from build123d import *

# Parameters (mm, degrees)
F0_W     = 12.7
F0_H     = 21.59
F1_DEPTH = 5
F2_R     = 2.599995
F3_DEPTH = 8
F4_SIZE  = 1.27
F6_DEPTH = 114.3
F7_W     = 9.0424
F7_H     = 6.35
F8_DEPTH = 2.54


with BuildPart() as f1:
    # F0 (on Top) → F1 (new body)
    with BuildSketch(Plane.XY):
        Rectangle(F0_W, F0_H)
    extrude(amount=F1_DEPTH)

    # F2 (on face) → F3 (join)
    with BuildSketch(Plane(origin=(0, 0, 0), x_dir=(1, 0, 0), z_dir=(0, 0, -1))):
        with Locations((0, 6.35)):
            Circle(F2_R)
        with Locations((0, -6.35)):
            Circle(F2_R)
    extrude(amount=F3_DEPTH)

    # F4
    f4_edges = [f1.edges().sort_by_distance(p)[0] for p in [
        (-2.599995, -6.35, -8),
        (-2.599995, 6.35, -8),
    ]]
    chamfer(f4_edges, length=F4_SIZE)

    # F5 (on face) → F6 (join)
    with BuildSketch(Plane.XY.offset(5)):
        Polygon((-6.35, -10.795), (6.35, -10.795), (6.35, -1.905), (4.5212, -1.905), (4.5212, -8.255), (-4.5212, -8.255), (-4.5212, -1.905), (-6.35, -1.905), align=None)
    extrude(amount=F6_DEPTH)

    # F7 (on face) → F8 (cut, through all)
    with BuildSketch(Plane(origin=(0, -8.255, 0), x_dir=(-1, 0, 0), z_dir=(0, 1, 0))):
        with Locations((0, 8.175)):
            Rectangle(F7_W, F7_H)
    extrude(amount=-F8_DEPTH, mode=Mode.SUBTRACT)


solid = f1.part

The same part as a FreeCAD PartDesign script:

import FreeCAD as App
import Part
import Sketcher
from FreeCAD import Vector
Q = App.Units.Quantity


def edges_at(feature, points):
    """Names of the edges that pass closest to the given points."""
    edges = feature.Shape.Edges
    near = lambda p: min(range(len(edges)), key=lambda i: edges[i].distToShape(Part.Vertex(*p))[0])
    return sorted({f"Edge{near(p) + 1}" for p in points})

doc = App.newDocument("Part")
body = doc.addObject("PartDesign::Body", "Body")

# Sketch on XY plane
sketch1 = body.newObject("Sketcher::SketchObject", "Sketch")
sketch1.AttachmentSupport = (doc.getObject("XY_Plane"), [""])
sketch1.MapMode = "FlatFace"
sketch1.addGeometry([
    Part.LineSegment(Vector(-6, 11, 0), Vector(-6, -11, 0)),
    Part.LineSegment(Vector(-6, -11, 0), Vector(6, -11, 0)),
    Part.LineSegment(Vector(6, -11, 0), Vector(6, 11, 0)),
    Part.LineSegment(Vector(6, 11, 0), Vector(-6, 11, 0)),
], False)
sketch1.addConstraint([
    Sketcher.Constraint("Coincident", 0, 2, 1, 1),
    Sketcher.Constraint("Coincident", 1, 2, 2, 1),
    Sketcher.Constraint("Coincident", 2, 2, 3, 1),
    Sketcher.Constraint("Coincident", 3, 2, 0, 1),
    Sketcher.Constraint("Vertical", 0),
    Sketcher.Constraint("Horizontal", 1),
    Sketcher.Constraint("Vertical", 2),
    Sketcher.Constraint("Horizontal", 3),
    Sketcher.Constraint("Symmetric", 0, 2, 2, 2, -1, 1),
    Sketcher.Constraint("DistanceX", 1, 1, 1, 2, Q("0.5 in")),
    Sketcher.Constraint("DistanceY", 0, 2, 0, 1, Q("0.85 in")),
])
pad1 = body.newObject("PartDesign::Pad", "Pad")
pad1.Profile = sketch1
pad1.Length = 5

# Sketch on XY plane
sketch2 = body.newObject("Sketcher::SketchObject", "Sketch001")
sketch2.AttachmentSupport = (doc.getObject("XY_Plane"), [""])
sketch2.MapMode = "FlatFace"
sketch2.addGeometry([
    Part.Circle(Vector(0, -6.3, 0), Vector(0, 0, 1), 2.6),
    Part.Circle(Vector(0, 6.3, 0), Vector(0, 0, 1), 2.6),
], False)
sketch2.addConstraint([
    Sketcher.Constraint("Equal", 0, 1),
    Sketcher.Constraint("Symmetric", 0, 3, 1, 3, -1, 1),
    Sketcher.Constraint("PointOnObject", 0, 3, -2),
    Sketcher.Constraint("DistanceY", 0, 3, 1, 3, Q("0.5 in")),
    Sketcher.Constraint("Diameter", 0, 5.19999),
])
pad2 = body.newObject("PartDesign::Pad", "Pad001")
pad2.Profile = sketch2
pad2.Length = 8
pad2.Reversed = True
doc.recompute()

chamfer = body.newObject("PartDesign::Chamfer", "Chamfer")
chamfer.Base = (pad2, edges_at(pad2, [(-2.6, -6.35, -8), (-2.6, 6.35, -8)]))
chamfer.Size = Q("0.05 in")

# Sketch on XY plane
sketch3 = body.newObject("Sketcher::SketchObject", "Sketch002")
sketch3.AttachmentSupport = (doc.getObject("XY_Plane"), [""])
sketch3.MapMode = "FlatFace"
sketch3.AttachmentOffset = App.Placement(Vector(0, 0, 5), App.Rotation())
sketch3.addGeometry([
    Part.LineSegment(Vector(-6.3, -10.8, 0), Vector(6.3, -10.8, 0)),  # 0
    Part.LineSegment(Vector(6.3, -10.8, 0), Vector(6.3, -1.9, 0)),  # 1
    Part.LineSegment(Vector(6.3, -1.9, 0), Vector(4.5, -1.9, 0)),  # 2
    Part.LineSegment(Vector(4.5, -1.9, 0), Vector(4.5, -8.3, 0)),  # 3
    Part.LineSegment(Vector(4.5, -8.3, 0), Vector(-4.5, -8.3, 0)),  # 4
    Part.LineSegment(Vector(-4.5, -8.3, 0), Vector(-4.5, -1.9, 0)),  # 5
    Part.LineSegment(Vector(-4.5, -1.9, 0), Vector(-6.3, -1.9, 0)),  # 6
    Part.LineSegment(Vector(-6.3, -1.9, 0), Vector(-6.3, -10.8, 0)),  # 7
], False)
sketch3.addConstraint([
    Sketcher.Constraint("Coincident", 0, 2, 1, 1),
    Sketcher.Constraint("Coincident", 1, 2, 2, 1),
    Sketcher.Constraint("Coincident", 2, 2, 3, 1),
    Sketcher.Constraint("Coincident", 3, 2, 4, 1),
    Sketcher.Constraint("Coincident", 4, 2, 5, 1),
    Sketcher.Constraint("Coincident", 5, 2, 6, 1),
    Sketcher.Constraint("Coincident", 6, 2, 7, 1),
    Sketcher.Constraint("Coincident", 7, 2, 0, 1),
    Sketcher.Constraint("Horizontal", 0),
    Sketcher.Constraint("Vertical", 1),
    Sketcher.Constraint("Horizontal", 2),
    Sketcher.Constraint("Vertical", 3),
    Sketcher.Constraint("Horizontal", 4),
    Sketcher.Constraint("Vertical", 5),
    Sketcher.Constraint("Horizontal", 6),
    Sketcher.Constraint("Vertical", 7),
    Sketcher.Constraint("Symmetric", 2, 2, 5, 2, -2),
    Sketcher.Constraint("Equal", 2, 6),
    Sketcher.Constraint("DistanceX", 0, 1, 0, 2, Q("0.5 in")),
    Sketcher.Constraint("DistanceY", 1, 1, 1, 2, Q("0.35 in")),
    Sketcher.Constraint("DistanceY", 3, 2, 3, 1, Q("0.25 in")),
    Sketcher.Constraint("DistanceX", 2, 2, 2, 1, Q("0.072 in")),
    Sketcher.Constraint("DistanceY", 0, 2, -1, 1, Q("0.425 in")),
])
pad3 = body.newObject("PartDesign::Pad", "Pad002")
pad3.Profile = sketch3
pad3.Length = Q("4.5 in")

# Sketch on XZ plane
sketch4 = body.newObject("Sketcher::SketchObject", "Sketch003")
sketch4.AttachmentSupport = (doc.getObject("XZ_Plane"), [""])
sketch4.MapMode = "FlatFace"
sketch4.AttachmentOffset = App.Placement(Vector(0, 0, 0.325 * 25.4), App.Rotation())
sketch4.addGeometry([
    Part.LineSegment(Vector(5, 11, 0), Vector(5, 5, 0)),
    Part.LineSegment(Vector(5, 5, 0), Vector(-5, 5, 0)),
    Part.LineSegment(Vector(-5, 5, 0), Vector(-5, 11, 0)),
    Part.LineSegment(Vector(-5, 11, 0), Vector(5, 11, 0)),
], False)
sketch4.addConstraint([
    Sketcher.Constraint("Coincident", 0, 2, 1, 1),
    Sketcher.Constraint("Coincident", 1, 2, 2, 1),
    Sketcher.Constraint("Coincident", 2, 2, 3, 1),
    Sketcher.Constraint("Coincident", 3, 2, 0, 1),
    Sketcher.Constraint("Vertical", 0),
    Sketcher.Constraint("Horizontal", 1),
    Sketcher.Constraint("Vertical", 2),
    Sketcher.Constraint("Horizontal", 3),
    Sketcher.Constraint("DistanceY", 0, 2, 0, 1, Q("0.25 in")),
    Sketcher.Constraint("DistanceX", 1, 2, 1, 1, Q("0.356 in")),
    Sketcher.Constraint("DistanceX", -1, 1, 0, 2, Q("0.178 in")),
    Sketcher.Constraint("DistanceY", -1, 1, 0, 2, 5.0),
])
pocket1 = body.newObject("PartDesign::Pocket", "Pocket")
pocket1.Profile = sketch4
pocket1.Type = "ThroughAll"
pocket1.Reversed = True

doc.recompute()
